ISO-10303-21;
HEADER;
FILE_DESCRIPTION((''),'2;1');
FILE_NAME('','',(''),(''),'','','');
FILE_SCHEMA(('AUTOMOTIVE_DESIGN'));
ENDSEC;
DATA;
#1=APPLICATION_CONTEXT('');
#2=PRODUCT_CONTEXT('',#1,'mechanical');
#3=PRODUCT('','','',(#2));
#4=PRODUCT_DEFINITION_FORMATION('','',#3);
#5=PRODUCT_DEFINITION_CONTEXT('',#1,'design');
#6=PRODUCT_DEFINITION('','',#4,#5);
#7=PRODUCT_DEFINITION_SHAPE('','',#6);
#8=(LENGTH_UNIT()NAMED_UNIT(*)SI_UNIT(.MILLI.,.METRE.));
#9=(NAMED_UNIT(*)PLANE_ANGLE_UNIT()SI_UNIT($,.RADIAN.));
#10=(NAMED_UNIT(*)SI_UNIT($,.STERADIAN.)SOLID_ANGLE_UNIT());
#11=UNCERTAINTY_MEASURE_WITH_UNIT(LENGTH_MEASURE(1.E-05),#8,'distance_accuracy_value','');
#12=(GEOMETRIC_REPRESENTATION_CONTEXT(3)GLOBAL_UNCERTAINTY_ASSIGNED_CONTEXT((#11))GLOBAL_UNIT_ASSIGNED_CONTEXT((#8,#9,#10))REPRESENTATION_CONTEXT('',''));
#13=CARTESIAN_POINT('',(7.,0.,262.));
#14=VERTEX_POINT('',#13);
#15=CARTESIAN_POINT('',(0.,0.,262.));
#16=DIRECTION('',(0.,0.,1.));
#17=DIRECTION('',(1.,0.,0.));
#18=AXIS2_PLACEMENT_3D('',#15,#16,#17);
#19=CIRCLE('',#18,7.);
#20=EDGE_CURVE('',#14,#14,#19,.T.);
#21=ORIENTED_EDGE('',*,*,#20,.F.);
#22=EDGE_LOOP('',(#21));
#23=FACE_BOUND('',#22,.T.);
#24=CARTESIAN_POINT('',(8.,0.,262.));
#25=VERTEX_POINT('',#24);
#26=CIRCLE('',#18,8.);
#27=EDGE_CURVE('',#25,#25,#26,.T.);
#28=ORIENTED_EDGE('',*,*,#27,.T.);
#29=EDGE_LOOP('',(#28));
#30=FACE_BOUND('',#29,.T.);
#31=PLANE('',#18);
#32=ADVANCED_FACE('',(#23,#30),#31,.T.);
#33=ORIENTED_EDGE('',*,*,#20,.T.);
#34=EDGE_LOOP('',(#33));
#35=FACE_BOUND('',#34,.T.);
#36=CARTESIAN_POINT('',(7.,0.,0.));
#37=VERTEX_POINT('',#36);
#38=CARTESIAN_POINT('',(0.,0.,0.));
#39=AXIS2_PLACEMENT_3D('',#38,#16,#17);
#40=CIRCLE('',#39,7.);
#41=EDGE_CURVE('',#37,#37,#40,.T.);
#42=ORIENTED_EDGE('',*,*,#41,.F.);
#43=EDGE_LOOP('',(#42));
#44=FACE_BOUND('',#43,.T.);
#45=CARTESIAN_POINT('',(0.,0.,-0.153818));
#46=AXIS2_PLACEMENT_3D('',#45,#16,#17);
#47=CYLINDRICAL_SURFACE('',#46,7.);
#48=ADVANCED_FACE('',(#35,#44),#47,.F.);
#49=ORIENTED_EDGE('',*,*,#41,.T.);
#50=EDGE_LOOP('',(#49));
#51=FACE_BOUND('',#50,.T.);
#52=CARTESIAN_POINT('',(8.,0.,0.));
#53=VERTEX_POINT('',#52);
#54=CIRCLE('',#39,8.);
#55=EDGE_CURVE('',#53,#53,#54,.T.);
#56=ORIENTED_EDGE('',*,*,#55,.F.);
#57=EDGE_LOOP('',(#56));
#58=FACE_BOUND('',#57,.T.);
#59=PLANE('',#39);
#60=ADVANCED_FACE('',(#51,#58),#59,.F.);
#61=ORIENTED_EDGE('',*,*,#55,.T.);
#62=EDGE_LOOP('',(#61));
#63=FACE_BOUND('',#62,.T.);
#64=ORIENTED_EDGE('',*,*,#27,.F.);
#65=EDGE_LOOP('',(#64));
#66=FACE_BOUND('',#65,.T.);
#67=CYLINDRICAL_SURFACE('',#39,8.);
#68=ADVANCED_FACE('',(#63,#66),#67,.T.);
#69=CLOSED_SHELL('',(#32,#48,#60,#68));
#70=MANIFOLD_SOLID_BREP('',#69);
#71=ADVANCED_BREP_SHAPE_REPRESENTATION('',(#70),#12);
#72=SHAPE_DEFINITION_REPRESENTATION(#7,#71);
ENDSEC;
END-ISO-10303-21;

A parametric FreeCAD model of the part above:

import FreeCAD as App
import Part
import Sketcher
from FreeCAD import Vector
Q = App.Units.Quantity

doc = App.newDocument("Part")
body = doc.addObject("PartDesign::Body", "Body")

# Sketch on XY plane
sketch1 = doc.addObject("Sketcher::SketchObject", "Sketch")
body.addObject(sketch1)
sketch1.AttachmentSupport = (doc.XY_Plane, [""])
sketch1.MapMode = "FlatFace"
sketch1.addGeometry(Part.Circle(Vector(0, 0, 0), Vector(0, 0, 1), 8), False)
sketch1.addConstraint([
    Sketcher.Constraint("Coincident", 0, 3, -1, 1),
    Sketcher.Constraint("Diameter", 0, Q("16 mm")),
])

# Sketch on XY plane
sketch2 = doc.addObject("Sketcher::SketchObject", "Sketch001")
body.addObject(sketch2)
sketch2.AttachmentSupport = (doc.XY_Plane, [""])
sketch2.MapMode = "FlatFace"
sketch2.AttachmentOffset = App.Placement(Vector(0, 0, 262), App.Rotation())
sketch2.addGeometry(Part.Circle(Vector(0, 0, 0), Vector(0, 0, 1), 8), False)
sketch2.addConstraint([
    Sketcher.Constraint("Coincident", 0, 3, -1, 1),
    Sketcher.Constraint("Diameter", 0, Q("16 mm")),
])

additiveloft = doc.addObject("PartDesign::AdditiveLoft", "AdditiveLoft")
body.addObject(additiveloft)
additiveloft.Profile = sketch1
additiveloft.Sections = [sketch2]

# Sketch on XY plane
sketch3 = doc.addObject("Sketcher::SketchObject", "Sketch002")
body.addObject(sketch3)
sketch3.AttachmentSupport = (doc.XY_Plane, [""])
sketch3.MapMode = "FlatFace"
sketch3.addGeometry(Part.Circle(Vector(0, 0, 0), Vector(0, 0, 1), 7), False)
sketch3.addConstraint([
    Sketcher.Constraint("Coincident", 0, 3, -1, 1),
    Sketcher.Constraint("Diameter", 0, Q("14 mm")),
])
pocket1 = doc.addObject("PartDesign::Pocket", "Pocket")
body.addObject(pocket1)
pocket1.Profile = sketch3
pocket1.Type = "ThroughAll"
pocket1.Midplane = True

doc.recompute()
